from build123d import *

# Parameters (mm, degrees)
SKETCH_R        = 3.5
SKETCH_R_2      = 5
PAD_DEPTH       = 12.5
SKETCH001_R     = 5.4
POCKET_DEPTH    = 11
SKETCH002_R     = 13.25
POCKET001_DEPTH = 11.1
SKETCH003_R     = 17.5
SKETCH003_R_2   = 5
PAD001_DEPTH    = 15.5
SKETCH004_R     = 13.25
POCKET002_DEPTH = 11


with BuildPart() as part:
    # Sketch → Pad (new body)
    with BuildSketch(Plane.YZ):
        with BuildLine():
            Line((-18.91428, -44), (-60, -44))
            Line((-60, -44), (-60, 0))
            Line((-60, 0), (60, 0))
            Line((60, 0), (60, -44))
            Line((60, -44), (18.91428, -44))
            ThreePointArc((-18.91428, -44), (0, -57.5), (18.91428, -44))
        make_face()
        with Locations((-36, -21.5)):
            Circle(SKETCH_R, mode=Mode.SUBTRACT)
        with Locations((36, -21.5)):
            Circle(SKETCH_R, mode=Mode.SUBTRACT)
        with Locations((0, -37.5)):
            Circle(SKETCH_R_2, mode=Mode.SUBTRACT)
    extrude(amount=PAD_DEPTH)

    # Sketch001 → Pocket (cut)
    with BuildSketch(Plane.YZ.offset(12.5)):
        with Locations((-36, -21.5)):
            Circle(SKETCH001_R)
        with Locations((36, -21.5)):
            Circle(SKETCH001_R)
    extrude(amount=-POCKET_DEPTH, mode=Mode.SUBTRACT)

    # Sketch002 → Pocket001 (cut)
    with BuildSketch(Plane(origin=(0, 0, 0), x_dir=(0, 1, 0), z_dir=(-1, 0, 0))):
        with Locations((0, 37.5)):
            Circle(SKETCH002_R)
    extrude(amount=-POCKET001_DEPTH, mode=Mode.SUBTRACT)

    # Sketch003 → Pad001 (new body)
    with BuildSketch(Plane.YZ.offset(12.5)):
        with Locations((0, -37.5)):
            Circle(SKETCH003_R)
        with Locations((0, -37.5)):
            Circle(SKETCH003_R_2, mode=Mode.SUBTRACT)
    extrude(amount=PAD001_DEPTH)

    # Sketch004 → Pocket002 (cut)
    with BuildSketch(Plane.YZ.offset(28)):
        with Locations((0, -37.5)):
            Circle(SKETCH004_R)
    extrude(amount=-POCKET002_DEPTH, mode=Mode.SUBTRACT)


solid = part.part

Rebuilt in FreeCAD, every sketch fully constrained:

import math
import FreeCAD as App
import Part
import Sketcher
from FreeCAD import Vector

doc = App.newDocument("Part")
body = doc.addObject("PartDesign::Body", "Body")

sketch1 = body.newObject("Sketcher::SketchObject", "Sketch")
sketch1.AttachmentSupport = (doc.getObject("YZ_Plane"), [""])
sketch1.MapMode = "FlatFace"
sketch1.addGeometry([
    Part.LineSegment(Vector(-60, -44, 0), Vector(-18.9, -44, 0)),
    Part.ArcOfCircle(Part.Circle(Vector(0, -37.5, 0), Vector(0, 0, 1), 20), math.radians(-161), math.radians(-19)),
    Part.LineSegment(Vector(18.9, -44, 0), Vector(60, -44, 0)),
    Part.LineSegment(Vector(60, -44, 0), Vector(60, 0, 0)),
    Part.LineSegment(Vector(60, 0, 0), Vector(-60, 0, 0)),
    Part.LineSegment(Vector(-60, 0, 0), Vector(-60, -44, 0)),
    Part.Circle(Vector(0, -37.5, 0), Vector(0, 0, 1), 5),
    Part.Circle(Vector(36, -21.5, 0), Vector(0, 0, 1), 3.5),
    Part.Circle(Vector(-36, -21.5, 0), Vector(0, 0, 1), 3.5),
], False)
sketch1.addConstraint([
    Sketcher.Constraint("Coincident", 0, 2, 1, 1),
    Sketcher.Constraint("Coincident", 1, 2, 2, 1),
    Sketcher.Constraint("Coincident", 2, 2, 3, 1),
    Sketcher.Constraint("Coincident", 3, 2, 4, 1),
    Sketcher.Constraint("Coincident", 4, 2, 5, 1),
    Sketcher.Constraint("Coincident", 5, 2, 0, 1),
    Sketcher.Constraint("Horizontal", 0),
    Sketcher.Constraint("Horizontal", 2),
    Sketcher.Constraint("Vertical", 3),
    Sketcher.Constraint("Horizontal", 4),
    Sketcher.Constraint("Vertical", 5),
    Sketcher.Constraint("Coincident", 6, 3, 1, 3),
    Sketcher.Constraint("Equal", 7, 8),
    Sketcher.Constraint("Symmetric", 3, 2, 4, 2, -1, 1),
    Sketcher.Constraint("Symmetric", 7, 3, 8, 3, -2),
    Sketcher.Constraint("Symmetric", 0, 2, 1, 2, -2),
    Sketcher.Constraint("Diameter", 6, 10.0),
    Sketcher.Constraint("Diameter", 7, 7.0),
    Sketcher.Constraint("Radius", 1, 20.0),
    Sketcher.Constraint("DistanceX", 4, 2, 4, 1, 120.0),
    Sketcher.Constraint("DistanceY", 3, 1, 3, 2, 44.0),
    Sketcher.Constraint("DistanceX", -1, 1, 7, 3, 36.0),
    Sketcher.Constraint("DistanceY", 6, 3, 7, 3, 16.0),
    Sketcher.Constraint("DistanceY", 1, 3, -1, 1, 37.5),
])
pad1 = body.newObject("PartDesign::Pad", "Pad")
pad1.Profile = sketch1
pad1.Length = 12.5

sketch2 = body.newObject("Sketcher::SketchObject", "Sketch001")
sketch2.AttachmentSupport = (doc.getObject("YZ_Plane"), [""])
sketch2.MapMode = "FlatFace"
sketch2.AttachmentOffset = App.Placement(Vector(0, 0, 12.5), App.Rotation())
sketch2.addGeometry([
    Part.Circle(Vector(-36, -22, 0), Vector(0, 0, 1), 5),
    Part.Circle(Vector(36, -22, 0), Vector(0, 0, 1), 5),
], False)
sketch2.addConstraint([
    Sketcher.Constraint("Equal", 0, 1),
    Sketcher.Constraint("Symmetric", 0, 3, 1, 3, -2),
    Sketcher.Constraint("Diameter", 0, 10.8),
    Sketcher.Constraint("DistanceX", 0, 3, -1, 1, 36.0),
    Sketcher.Constraint("DistanceY", 0, 3, -1, 1, 21.5),
])
pocket1 = body.newObject("PartDesign::Pocket", "Pocket")
pocket1.Profile = sketch2
pocket1.Length = 11

sketch3 = body.newObject("Sketcher::SketchObject", "Sketch002")
sketch3.AttachmentSupport = (doc.getObject("YZ_Plane"), [""])
sketch3.MapMode = "FlatFace"
sketch3.addGeometry(Part.Circle(Vector(0, -38, 0), Vector(0, 0, 1), 13), False)
sketch3.addConstraint([
    Sketcher.Constraint("PointOnObject", 0, 3, -2),
    Sketcher.Constraint("Diameter", 0, 26.5),
    Sketcher.Constraint("DistanceY", 0, 3, -1, 1, 37.5),
])
pocket2 = body.newObject("PartDesign::Pocket", "Pocket001")
pocket2.Profile = sketch3
pocket2.Length = 11.1
pocket2.Reversed = True

sketch4 = body.newObject("Sketcher::SketchObject", "Sketch003")
sketch4.AttachmentSupport = (doc.getObject("YZ_Plane"), [""])
sketch4.MapMode = "FlatFace"
sketch4.AttachmentOffset = App.Placement(Vector(0, 0, 12.5), App.Rotation())
sketch4.addGeometry([
    Part.Circle(Vector(0, -38, 0), Vector(0, 0, 1), 18),
    Part.Circle(Vector(0, -38, 0), Vector(0, 0, 1), 5),
], False)
sketch4.addConstraint([
    Sketcher.Constraint("Coincident", 1, 3, 0, 3),
    Sketcher.Constraint("PointOnObject", 0, 3, -2),
    Sketcher.Constraint("Diameter", 0, 35.0),
    Sketcher.Constraint("Diameter", 1, 10.0),
    Sketcher.Constraint("DistanceY", 0, 3, -1, 1, 37.5),
])
pad2 = body.newObject("PartDesign::Pad", "Pad001")
pad2.Profile = sketch4
pad2.Length = 15.5

sketch5 = body.newObject("Sketcher::SketchObject", "Sketch004")
sketch5.AttachmentSupport = (doc.getObject("YZ_Plane"), [""])
sketch5.MapMode = "FlatFace"
sketch5.AttachmentOffset = App.Placement(Vector(0, 0, 28), App.Rotation())
sketch5.addGeometry(Part.Circle(Vector(0, -38, 0), Vector(0, 0, 1), 13), False)
sketch5.addConstraint([
    Sketcher.Constraint("PointOnObject", 0, 3, -2),
    Sketcher.Constraint("Diameter", 0, 26.5),
    Sketcher.Constraint("DistanceY", 0, 3, -1, 1, 37.5),
])
pocket3 = body.newObject("PartDesign::Pocket", "Pocket002")
pocket3.Profile = sketch5
pocket3.Length = 11

doc.recompute()
